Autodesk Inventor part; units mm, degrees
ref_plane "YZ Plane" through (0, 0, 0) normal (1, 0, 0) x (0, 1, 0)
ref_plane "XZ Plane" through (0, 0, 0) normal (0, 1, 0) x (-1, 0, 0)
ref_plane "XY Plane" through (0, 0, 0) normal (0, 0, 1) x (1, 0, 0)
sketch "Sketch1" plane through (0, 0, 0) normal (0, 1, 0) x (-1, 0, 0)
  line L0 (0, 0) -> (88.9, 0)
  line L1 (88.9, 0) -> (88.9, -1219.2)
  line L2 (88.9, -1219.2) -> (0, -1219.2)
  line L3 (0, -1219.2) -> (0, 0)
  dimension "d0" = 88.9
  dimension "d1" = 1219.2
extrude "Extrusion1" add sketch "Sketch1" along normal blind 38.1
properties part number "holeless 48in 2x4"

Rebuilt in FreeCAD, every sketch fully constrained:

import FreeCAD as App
import Part
import Sketcher

V = App.Vector
Q = App.Units.Quantity

doc = App.newDocument("Part")
body = doc.addObject("PartDesign::Body", "Body")

sketch1 = doc.addObject("Sketcher::SketchObject", "Sketch")
body.addObject(sketch1)
sketch1.AttachmentSupport = (doc.XZ_Plane, [""])
sketch1.MapMode = "FlatFace"
sketch1.addGeometry([
    Part.LineSegment(V(-89, 0, 0), V(0, 0, 0)),
    Part.LineSegment(V(0, 0, 0), V(0, -1219, 0)),
    Part.LineSegment(V(0, -1219, 0), V(-89, -1219, 0)),
    Part.LineSegment(V(-89, -1219, 0), V(-89, 0, 0)),
], False)
sketch1.addConstraint([
    Sketcher.Constraint("Coincident", 0, 2, 1, 1),
    Sketcher.Constraint("Coincident", 1, 2, 2, 1),
    Sketcher.Constraint("Coincident", 2, 2, 3, 1),
    Sketcher.Constraint("Coincident", 3, 2, 0, 1),
    Sketcher.Constraint("Horizontal", 0),
    Sketcher.Constraint("Vertical", 1),
    Sketcher.Constraint("Horizontal", 2),
    Sketcher.Constraint("Vertical", 3),
    Sketcher.Constraint("Coincident", 0, 2, -1, 1),
    Sketcher.Constraint("DistanceY", 1, 2, 1, 1, Q("48 in")),
    Sketcher.Constraint("DistanceX", 0, 1, 0, 2, Q("3.5 in")),
])
pad1 = doc.addObject("PartDesign::Pad", "Pad")
body.addObject(pad1)
pad1.Profile = sketch1
pad1.Length = Q("1.5 in")
pad1.Reversed = True

doc.recompute()
